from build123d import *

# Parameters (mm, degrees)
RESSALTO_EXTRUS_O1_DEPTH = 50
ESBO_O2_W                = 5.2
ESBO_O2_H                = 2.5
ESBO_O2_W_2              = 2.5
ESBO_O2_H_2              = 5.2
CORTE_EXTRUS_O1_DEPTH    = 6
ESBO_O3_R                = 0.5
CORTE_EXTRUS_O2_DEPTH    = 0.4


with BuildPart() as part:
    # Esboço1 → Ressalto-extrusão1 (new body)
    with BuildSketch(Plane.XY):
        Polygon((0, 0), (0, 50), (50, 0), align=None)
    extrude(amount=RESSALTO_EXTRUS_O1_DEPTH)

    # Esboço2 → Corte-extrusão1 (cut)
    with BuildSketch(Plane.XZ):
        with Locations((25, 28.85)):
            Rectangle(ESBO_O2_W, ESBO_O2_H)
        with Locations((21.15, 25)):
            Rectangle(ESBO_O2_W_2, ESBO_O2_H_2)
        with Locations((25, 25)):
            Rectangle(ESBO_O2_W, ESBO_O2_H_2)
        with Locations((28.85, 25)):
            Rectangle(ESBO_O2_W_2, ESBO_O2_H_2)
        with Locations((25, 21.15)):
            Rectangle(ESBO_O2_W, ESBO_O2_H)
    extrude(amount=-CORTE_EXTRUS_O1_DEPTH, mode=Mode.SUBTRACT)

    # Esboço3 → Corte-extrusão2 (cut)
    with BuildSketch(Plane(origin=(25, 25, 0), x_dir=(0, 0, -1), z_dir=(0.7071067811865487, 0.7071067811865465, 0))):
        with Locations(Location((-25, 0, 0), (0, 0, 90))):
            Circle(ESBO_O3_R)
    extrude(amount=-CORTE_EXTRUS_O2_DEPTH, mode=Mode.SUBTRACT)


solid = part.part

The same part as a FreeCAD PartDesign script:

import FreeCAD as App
import Part
import Sketcher
from FreeCAD import Vector


def add_polygon(sketch, points):
    """Adds a closed chain of lines whose ends are joined by coincident constraints."""
    first, n = sketch.GeometryCount, len(points)
    for a, b in zip(points, points[1:] + points[:1]):
        sketch.addGeometry(Part.LineSegment(App.Vector(*a, 0), App.Vector(*b, 0)), False)
    for i in range(n):
        sketch.addConstraint(Sketcher.Constraint("Coincident", first + i, 2, first + (i + 1) % n, 1))

doc = App.newDocument("Part")
body = doc.addObject("PartDesign::Body", "Body")

sketch1 = body.newObject("Sketcher::SketchObject", "Sketch")
sketch1.AttachmentSupport = (doc.getObject("XY_Plane"), [""])
sketch1.MapMode = "FlatFace"
add_polygon(sketch1, [(0, 50), (0, 0), (50, 0)])
sketch1.addConstraint([
    Sketcher.Constraint("Vertical", 0),
    Sketcher.Constraint("Horizontal", 1),
    Sketcher.Constraint("Coincident", 0, 2, -1, 1),
    Sketcher.Constraint("Equal", 1, 0),
    Sketcher.Constraint("DistanceX", 1, 1, 1, 2, 50.0),
])
pad1 = body.newObject("PartDesign::Pad", "Pad")
pad1.Profile = sketch1
pad1.Length = 50

sketch2 = body.newObject("Sketcher::SketchObject", "Sketch001")
sketch2.AttachmentSupport = (doc.getObject("XZ_Plane"), [""])
sketch2.MapMode = "FlatFace"
add_polygon(sketch2, [(22.4, 30.1), (22.4, 27.6), (19.9, 27.6), (19.9, 22.4), (22.4, 22.4), (22.4, 19.9), (27.6, 19.9), (27.6, 22.4), (30.1, 22.4), (30.1, 27.6), (27.6, 27.6), (27.6, 30.1)])
sketch2.addConstraint([
    Sketcher.Constraint("Vertical", 0),
    Sketcher.Constraint("Horizontal", 1),
    Sketcher.Constraint("Vertical", 2),
    Sketcher.Constraint("Horizontal", 3),
    Sketcher.Constraint("Vertical", 4),
    Sketcher.Constraint("Horizontal", 5),
    Sketcher.Constraint("Vertical", 6),
    Sketcher.Constraint("Horizontal", 7),
    Sketcher.Constraint("Vertical", 8),
    Sketcher.Constraint("Horizontal", 9),
    Sketcher.Constraint("Vertical", 10),
    Sketcher.Constraint("Horizontal", 11),
    Sketcher.Constraint("Horizontal", 3, 2, 6, 2),
    Sketcher.Constraint("Horizontal", 1, 2, 8, 2),
    Sketcher.Constraint("Vertical", 0, 2, 3, 2),
    Sketcher.Constraint("Vertical", 6, 2, 9, 2),
    Sketcher.Constraint("Equal", 3, 7),
    Sketcher.Constraint("Equal", 9, 0),
    Sketcher.Constraint("Equal", 11, 2),
    Sketcher.Constraint("Equal", 0, 4),
    Sketcher.Constraint("DistanceX", 1, 2, 1, 1, 2.5),
    Sketcher.Constraint("DistanceX", 5, 1, 5, 2, 5.2),
    Sketcher.Constraint("DistanceX", -1, 1, 0, 2, 22.4),
    Sketcher.Constraint("DistanceY", -1, 1, 0, 2, 27.6),
])
pocket1 = body.newObject("PartDesign::Pocket", "Pocket")
pocket1.Profile = sketch2
pocket1.Length = 6

sketch3 = body.newObject("Sketcher::SketchObject", "Sketch002")
sketch3.Placement = App.Placement(Vector(25, 25, 0), App.Rotation(Vector(0, 0, -1), Vector(-0.707106781, 0.707106781, 0), Vector(0.707106781, 0.707106781, 0), "ZXY"))
sketch3.addGeometry(Part.Circle(Vector(-25, 0, 0), Vector(0, 0, 1), 0.5), False)
sketch3.addConstraint([
    Sketcher.Constraint("PointOnObject", 0, 3, -1),
    Sketcher.Constraint("Diameter", 0, 1.0),
    Sketcher.Constraint("DistanceX", 0, 3, -1, 1, 25.0),
])
pocket2 = body.newObject("PartDesign::Pocket", "Pocket001")
pocket2.Profile = sketch3
pocket2.Length = 0.4

doc.recompute()
